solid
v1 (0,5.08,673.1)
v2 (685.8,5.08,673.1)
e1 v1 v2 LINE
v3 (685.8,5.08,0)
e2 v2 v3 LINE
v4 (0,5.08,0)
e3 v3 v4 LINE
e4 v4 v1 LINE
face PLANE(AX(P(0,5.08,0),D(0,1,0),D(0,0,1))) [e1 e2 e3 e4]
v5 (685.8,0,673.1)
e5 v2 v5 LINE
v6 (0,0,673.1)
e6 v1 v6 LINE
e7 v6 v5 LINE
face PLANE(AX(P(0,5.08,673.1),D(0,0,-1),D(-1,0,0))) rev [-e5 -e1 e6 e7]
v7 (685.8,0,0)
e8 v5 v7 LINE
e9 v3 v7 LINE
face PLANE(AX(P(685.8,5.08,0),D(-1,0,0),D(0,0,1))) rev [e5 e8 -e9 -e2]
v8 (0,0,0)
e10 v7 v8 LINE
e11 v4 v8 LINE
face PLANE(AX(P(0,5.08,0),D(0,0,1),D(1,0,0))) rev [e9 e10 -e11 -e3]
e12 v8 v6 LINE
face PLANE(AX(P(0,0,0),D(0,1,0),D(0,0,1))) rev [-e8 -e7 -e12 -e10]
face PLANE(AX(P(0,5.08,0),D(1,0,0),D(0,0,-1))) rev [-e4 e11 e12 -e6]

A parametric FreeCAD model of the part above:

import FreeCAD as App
import Part
import Sketcher

V = App.Vector
Q = App.Units.Quantity

doc = App.newDocument("Part")
body = doc.addObject("PartDesign::Body", "Body")

# Sketch on XZ plane
sketch1 = body.newObject("Sketcher::SketchObject", "Sketch")
sketch1.AttachmentSupport = (doc.getObject("XZ_Plane"), [""])
sketch1.MapMode = "FlatFace"
sketch1.addGeometry(Part.LineSegment(V(0, 0, 0), V(0, 673.1, 0)), False)
sketch1.addGeometry(Part.LineSegment(V(0, 673.1, 0), V(685.8, 673.1, 0)), False)
sketch1.addGeometry(Part.LineSegment(V(685.8, 673.1, 0), V(685.8, 0, 0)), False)
sketch1.addGeometry(Part.LineSegment(V(685.8, 0, 0), V(0, 0, 0)), False)
sketch1.addConstraint(Sketcher.Constraint("Coincident", 0, 2, 1, 1))
sketch1.addConstraint(Sketcher.Constraint("Coincident", 1, 2, 2, 1))
sketch1.addConstraint(Sketcher.Constraint("Coincident", 2, 2, 3, 1))
sketch1.addConstraint(Sketcher.Constraint("Coincident", 3, 2, 0, 1))
sketch1.addConstraint(Sketcher.Constraint("Vertical", 0))
sketch1.addConstraint(Sketcher.Constraint("Horizontal", 1))
sketch1.addConstraint(Sketcher.Constraint("Vertical", 2))
sketch1.addConstraint(Sketcher.Constraint("Horizontal", 3))
sketch1.addConstraint(Sketcher.Constraint("Coincident", 3, 2, -1, 1))
sketch1.addConstraint(Sketcher.Constraint("DistanceX", 1, 1, 1, 2, Q("27 in")))
sketch1.addConstraint(Sketcher.Constraint("DistanceY", 0, 1, 0, 2, Q("26.5 in")))
pad1 = body.newObject("PartDesign::Pad", "Pad")
pad1.Profile = sketch1
pad1.Length = Q("0.2 in")
pad1.Reversed = True

doc.recompute()
